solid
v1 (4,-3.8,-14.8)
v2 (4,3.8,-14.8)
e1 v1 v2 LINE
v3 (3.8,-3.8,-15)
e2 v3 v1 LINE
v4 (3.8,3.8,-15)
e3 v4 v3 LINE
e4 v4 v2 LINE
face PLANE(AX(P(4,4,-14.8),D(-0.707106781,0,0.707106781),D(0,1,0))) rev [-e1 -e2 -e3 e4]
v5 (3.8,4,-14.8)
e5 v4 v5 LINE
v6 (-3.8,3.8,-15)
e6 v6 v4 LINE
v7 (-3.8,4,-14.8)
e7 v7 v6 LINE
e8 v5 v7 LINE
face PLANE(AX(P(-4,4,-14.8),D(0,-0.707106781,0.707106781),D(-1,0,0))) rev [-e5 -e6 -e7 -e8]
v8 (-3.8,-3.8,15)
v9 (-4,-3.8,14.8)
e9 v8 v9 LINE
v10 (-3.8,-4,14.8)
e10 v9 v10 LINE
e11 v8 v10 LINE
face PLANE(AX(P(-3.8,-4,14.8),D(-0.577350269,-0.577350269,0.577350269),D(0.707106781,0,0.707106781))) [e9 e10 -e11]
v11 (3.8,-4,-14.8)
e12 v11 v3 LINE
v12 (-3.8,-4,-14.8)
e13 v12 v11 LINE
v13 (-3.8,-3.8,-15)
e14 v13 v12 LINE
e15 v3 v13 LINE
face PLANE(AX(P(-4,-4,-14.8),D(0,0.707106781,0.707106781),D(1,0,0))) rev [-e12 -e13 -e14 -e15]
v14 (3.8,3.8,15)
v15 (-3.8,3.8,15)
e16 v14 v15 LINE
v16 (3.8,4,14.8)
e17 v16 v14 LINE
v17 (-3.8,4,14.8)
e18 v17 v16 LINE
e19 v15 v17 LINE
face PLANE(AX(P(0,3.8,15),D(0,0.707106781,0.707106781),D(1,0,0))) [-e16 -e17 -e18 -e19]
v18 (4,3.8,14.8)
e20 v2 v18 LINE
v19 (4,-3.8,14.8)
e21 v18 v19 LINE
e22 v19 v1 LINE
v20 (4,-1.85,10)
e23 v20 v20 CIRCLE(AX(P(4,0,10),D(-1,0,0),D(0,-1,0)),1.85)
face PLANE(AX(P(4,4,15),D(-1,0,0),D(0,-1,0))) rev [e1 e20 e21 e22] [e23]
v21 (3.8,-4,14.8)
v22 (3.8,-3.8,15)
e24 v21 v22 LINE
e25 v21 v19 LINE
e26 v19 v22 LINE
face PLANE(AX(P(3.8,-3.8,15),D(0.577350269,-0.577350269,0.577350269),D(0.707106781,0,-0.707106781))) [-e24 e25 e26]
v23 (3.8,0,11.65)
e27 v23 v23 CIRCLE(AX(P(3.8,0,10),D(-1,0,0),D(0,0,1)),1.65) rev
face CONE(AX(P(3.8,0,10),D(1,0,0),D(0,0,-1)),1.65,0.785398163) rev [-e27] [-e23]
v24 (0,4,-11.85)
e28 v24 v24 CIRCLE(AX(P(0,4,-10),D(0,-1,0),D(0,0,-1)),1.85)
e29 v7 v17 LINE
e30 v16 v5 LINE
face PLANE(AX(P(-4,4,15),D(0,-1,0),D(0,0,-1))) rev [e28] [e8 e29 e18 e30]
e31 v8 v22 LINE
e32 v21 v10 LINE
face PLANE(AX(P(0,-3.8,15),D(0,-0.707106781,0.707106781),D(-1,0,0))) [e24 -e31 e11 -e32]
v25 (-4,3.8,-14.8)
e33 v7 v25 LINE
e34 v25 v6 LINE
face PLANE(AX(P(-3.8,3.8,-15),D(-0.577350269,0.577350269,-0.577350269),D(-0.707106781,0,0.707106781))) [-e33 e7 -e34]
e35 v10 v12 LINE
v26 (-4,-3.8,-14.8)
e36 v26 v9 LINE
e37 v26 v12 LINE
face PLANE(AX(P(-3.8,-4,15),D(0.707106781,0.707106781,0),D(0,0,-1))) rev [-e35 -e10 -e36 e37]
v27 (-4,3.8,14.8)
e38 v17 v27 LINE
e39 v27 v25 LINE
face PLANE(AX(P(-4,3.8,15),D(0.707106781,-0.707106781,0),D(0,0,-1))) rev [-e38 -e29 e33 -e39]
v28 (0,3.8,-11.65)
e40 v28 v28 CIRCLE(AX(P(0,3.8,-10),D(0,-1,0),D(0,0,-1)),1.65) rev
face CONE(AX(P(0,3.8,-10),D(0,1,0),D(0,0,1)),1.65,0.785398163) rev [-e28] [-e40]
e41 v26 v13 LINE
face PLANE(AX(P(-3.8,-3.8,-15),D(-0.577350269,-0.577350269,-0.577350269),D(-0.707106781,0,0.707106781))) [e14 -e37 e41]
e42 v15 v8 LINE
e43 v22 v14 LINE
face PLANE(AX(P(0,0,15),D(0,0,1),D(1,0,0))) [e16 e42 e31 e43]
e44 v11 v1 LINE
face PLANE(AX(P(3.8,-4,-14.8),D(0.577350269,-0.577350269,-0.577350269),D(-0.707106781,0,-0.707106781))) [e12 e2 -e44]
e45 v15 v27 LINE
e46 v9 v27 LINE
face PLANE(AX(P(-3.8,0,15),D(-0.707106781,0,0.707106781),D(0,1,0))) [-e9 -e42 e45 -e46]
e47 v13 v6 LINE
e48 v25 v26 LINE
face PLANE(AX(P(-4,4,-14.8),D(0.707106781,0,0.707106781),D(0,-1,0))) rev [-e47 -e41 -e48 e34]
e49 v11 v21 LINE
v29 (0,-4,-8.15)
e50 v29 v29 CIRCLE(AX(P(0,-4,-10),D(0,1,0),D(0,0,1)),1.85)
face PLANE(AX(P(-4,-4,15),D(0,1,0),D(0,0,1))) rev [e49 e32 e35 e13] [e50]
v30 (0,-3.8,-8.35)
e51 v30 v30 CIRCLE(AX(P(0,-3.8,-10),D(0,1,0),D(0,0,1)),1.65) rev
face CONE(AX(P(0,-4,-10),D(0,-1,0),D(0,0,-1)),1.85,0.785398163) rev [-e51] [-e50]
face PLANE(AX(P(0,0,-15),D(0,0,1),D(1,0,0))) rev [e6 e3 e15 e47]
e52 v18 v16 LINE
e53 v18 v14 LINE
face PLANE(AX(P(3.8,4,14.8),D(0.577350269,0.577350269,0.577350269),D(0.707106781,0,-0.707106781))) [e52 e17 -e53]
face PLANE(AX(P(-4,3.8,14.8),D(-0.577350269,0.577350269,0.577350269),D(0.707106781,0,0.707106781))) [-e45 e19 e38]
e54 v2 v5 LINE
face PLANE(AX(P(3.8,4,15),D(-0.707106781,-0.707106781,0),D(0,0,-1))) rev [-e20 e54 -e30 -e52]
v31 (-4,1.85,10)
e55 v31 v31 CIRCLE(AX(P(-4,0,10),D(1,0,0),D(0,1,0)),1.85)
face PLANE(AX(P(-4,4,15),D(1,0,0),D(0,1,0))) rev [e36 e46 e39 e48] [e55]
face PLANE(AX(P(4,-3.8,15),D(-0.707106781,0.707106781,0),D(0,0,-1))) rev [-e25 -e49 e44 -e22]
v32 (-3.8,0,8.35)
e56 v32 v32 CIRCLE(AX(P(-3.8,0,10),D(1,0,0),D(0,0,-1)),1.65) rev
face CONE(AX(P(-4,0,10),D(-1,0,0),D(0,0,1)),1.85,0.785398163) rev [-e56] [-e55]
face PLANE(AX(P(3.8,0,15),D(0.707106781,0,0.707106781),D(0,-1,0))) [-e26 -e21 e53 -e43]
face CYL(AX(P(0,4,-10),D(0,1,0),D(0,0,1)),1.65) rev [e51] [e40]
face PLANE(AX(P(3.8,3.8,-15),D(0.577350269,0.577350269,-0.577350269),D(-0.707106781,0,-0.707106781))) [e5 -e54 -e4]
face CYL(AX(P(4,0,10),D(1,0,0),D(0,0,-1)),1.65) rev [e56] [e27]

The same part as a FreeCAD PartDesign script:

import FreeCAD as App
import Part
import Sketcher

V = App.Vector
Q = App.Units.Quantity


def add_polygon(sketch, points):
    """Adds a closed chain of lines whose ends are joined by coincident constraints."""
    first, n = sketch.GeometryCount, len(points)
    for a, b in zip(points, points[1:] + points[:1]):
        sketch.addGeometry(Part.LineSegment(App.Vector(*a, 0), App.Vector(*b, 0)), False)
    for i in range(n):
        sketch.addConstraint(Sketcher.Constraint("Coincident", first + i, 2, first + (i + 1) % n, 1))

doc = App.newDocument("Part")
body = doc.addObject("PartDesign::Body", "Body")

# Sketch on XY plane
sketch1 = body.newObject("Sketcher::SketchObject", "Sketch")
sketch1.AttachmentSupport = (doc.getObject("XY_Plane"), [""])
sketch1.MapMode = "FlatFace"
add_polygon(sketch1, [(-4, 4), (-4, -4), (4, -4), (4, 4)])  # lines 0-3
sketch1.addConstraint([
    Sketcher.Constraint("Vertical", 0),
    Sketcher.Constraint("Horizontal", 1),
    Sketcher.Constraint("Vertical", 2),
    Sketcher.Constraint("Horizontal", 3),
    Sketcher.Constraint("Symmetric", 0, 2, 2, 2, -1, 1),
    Sketcher.Constraint("Equal", 3, 0),
    Sketcher.Constraint("DistanceX", 1, 1, 1, 2, Q("8 mm")),
])
pad1 = body.newObject("PartDesign::Pad", "Pad")
pad1.Profile = sketch1
pad1.Length = 30
pad1.Midplane = True

# Sketch on YZ plane
sketch2 = body.newObject("Sketcher::SketchObject", "Sketch001")
sketch2.AttachmentSupport = (doc.getObject("YZ_Plane"), [""])
sketch2.MapMode = "FlatFace"
sketch2.AttachmentOffset = App.Placement(V(0, 0, 4), App.Rotation())
sketch2.addGeometry(Part.Circle(V(0, 10, 0), V(0, 0, 1), 1.65), False)
sketch2.addConstraint([
    Sketcher.Constraint("PointOnObject", 0, 3, -2),
    Sketcher.Constraint("Diameter", 0, Q("3.3 mm")),
    Sketcher.Constraint("DistanceY", -1, 1, 0, 3, Q("10 mm")),
])
doc.recompute()
hole = body.newObject("PartDesign::Hole", "Hole")
hole.Profile = sketch2
hole.ThreadType = "None"
hole.Diameter = 3.3
hole.DepthType = "ThroughAll"

# Sketch on XZ plane
sketch3 = body.newObject("Sketcher::SketchObject", "Sketch002")
sketch3.AttachmentSupport = (doc.getObject("XZ_Plane"), [""])
sketch3.MapMode = "FlatFace"
sketch3.AttachmentOffset = App.Placement(V(0, 0, -4), App.Rotation())
sketch3.addGeometry(Part.Circle(V(0, -10, 0), V(0, 0, 1), 1.65), False)
sketch3.addConstraint([
    Sketcher.Constraint("PointOnObject", 0, 3, -2),
    Sketcher.Constraint("Diameter", 0, Q("3.3 mm")),
    Sketcher.Constraint("DistanceY", 0, 3, -1, 1, Q("10 mm")),
])
doc.recompute()
hole2 = body.newObject("PartDesign::Hole", "Hole001")
hole2.Profile = sketch3
hole2.ThreadType = "None"
hole2.Diameter = 3.3
hole2.DepthType = "ThroughAll"
hole2.Reversed = True
doc.recompute()

chamfer = body.newObject("PartDesign::Chamfer", "Chamfer")
chamfer.Base = (hole2, ["Edge1"])
chamfer.UseAllEdges = True
chamfer.Size = 0.2

doc.recompute()
